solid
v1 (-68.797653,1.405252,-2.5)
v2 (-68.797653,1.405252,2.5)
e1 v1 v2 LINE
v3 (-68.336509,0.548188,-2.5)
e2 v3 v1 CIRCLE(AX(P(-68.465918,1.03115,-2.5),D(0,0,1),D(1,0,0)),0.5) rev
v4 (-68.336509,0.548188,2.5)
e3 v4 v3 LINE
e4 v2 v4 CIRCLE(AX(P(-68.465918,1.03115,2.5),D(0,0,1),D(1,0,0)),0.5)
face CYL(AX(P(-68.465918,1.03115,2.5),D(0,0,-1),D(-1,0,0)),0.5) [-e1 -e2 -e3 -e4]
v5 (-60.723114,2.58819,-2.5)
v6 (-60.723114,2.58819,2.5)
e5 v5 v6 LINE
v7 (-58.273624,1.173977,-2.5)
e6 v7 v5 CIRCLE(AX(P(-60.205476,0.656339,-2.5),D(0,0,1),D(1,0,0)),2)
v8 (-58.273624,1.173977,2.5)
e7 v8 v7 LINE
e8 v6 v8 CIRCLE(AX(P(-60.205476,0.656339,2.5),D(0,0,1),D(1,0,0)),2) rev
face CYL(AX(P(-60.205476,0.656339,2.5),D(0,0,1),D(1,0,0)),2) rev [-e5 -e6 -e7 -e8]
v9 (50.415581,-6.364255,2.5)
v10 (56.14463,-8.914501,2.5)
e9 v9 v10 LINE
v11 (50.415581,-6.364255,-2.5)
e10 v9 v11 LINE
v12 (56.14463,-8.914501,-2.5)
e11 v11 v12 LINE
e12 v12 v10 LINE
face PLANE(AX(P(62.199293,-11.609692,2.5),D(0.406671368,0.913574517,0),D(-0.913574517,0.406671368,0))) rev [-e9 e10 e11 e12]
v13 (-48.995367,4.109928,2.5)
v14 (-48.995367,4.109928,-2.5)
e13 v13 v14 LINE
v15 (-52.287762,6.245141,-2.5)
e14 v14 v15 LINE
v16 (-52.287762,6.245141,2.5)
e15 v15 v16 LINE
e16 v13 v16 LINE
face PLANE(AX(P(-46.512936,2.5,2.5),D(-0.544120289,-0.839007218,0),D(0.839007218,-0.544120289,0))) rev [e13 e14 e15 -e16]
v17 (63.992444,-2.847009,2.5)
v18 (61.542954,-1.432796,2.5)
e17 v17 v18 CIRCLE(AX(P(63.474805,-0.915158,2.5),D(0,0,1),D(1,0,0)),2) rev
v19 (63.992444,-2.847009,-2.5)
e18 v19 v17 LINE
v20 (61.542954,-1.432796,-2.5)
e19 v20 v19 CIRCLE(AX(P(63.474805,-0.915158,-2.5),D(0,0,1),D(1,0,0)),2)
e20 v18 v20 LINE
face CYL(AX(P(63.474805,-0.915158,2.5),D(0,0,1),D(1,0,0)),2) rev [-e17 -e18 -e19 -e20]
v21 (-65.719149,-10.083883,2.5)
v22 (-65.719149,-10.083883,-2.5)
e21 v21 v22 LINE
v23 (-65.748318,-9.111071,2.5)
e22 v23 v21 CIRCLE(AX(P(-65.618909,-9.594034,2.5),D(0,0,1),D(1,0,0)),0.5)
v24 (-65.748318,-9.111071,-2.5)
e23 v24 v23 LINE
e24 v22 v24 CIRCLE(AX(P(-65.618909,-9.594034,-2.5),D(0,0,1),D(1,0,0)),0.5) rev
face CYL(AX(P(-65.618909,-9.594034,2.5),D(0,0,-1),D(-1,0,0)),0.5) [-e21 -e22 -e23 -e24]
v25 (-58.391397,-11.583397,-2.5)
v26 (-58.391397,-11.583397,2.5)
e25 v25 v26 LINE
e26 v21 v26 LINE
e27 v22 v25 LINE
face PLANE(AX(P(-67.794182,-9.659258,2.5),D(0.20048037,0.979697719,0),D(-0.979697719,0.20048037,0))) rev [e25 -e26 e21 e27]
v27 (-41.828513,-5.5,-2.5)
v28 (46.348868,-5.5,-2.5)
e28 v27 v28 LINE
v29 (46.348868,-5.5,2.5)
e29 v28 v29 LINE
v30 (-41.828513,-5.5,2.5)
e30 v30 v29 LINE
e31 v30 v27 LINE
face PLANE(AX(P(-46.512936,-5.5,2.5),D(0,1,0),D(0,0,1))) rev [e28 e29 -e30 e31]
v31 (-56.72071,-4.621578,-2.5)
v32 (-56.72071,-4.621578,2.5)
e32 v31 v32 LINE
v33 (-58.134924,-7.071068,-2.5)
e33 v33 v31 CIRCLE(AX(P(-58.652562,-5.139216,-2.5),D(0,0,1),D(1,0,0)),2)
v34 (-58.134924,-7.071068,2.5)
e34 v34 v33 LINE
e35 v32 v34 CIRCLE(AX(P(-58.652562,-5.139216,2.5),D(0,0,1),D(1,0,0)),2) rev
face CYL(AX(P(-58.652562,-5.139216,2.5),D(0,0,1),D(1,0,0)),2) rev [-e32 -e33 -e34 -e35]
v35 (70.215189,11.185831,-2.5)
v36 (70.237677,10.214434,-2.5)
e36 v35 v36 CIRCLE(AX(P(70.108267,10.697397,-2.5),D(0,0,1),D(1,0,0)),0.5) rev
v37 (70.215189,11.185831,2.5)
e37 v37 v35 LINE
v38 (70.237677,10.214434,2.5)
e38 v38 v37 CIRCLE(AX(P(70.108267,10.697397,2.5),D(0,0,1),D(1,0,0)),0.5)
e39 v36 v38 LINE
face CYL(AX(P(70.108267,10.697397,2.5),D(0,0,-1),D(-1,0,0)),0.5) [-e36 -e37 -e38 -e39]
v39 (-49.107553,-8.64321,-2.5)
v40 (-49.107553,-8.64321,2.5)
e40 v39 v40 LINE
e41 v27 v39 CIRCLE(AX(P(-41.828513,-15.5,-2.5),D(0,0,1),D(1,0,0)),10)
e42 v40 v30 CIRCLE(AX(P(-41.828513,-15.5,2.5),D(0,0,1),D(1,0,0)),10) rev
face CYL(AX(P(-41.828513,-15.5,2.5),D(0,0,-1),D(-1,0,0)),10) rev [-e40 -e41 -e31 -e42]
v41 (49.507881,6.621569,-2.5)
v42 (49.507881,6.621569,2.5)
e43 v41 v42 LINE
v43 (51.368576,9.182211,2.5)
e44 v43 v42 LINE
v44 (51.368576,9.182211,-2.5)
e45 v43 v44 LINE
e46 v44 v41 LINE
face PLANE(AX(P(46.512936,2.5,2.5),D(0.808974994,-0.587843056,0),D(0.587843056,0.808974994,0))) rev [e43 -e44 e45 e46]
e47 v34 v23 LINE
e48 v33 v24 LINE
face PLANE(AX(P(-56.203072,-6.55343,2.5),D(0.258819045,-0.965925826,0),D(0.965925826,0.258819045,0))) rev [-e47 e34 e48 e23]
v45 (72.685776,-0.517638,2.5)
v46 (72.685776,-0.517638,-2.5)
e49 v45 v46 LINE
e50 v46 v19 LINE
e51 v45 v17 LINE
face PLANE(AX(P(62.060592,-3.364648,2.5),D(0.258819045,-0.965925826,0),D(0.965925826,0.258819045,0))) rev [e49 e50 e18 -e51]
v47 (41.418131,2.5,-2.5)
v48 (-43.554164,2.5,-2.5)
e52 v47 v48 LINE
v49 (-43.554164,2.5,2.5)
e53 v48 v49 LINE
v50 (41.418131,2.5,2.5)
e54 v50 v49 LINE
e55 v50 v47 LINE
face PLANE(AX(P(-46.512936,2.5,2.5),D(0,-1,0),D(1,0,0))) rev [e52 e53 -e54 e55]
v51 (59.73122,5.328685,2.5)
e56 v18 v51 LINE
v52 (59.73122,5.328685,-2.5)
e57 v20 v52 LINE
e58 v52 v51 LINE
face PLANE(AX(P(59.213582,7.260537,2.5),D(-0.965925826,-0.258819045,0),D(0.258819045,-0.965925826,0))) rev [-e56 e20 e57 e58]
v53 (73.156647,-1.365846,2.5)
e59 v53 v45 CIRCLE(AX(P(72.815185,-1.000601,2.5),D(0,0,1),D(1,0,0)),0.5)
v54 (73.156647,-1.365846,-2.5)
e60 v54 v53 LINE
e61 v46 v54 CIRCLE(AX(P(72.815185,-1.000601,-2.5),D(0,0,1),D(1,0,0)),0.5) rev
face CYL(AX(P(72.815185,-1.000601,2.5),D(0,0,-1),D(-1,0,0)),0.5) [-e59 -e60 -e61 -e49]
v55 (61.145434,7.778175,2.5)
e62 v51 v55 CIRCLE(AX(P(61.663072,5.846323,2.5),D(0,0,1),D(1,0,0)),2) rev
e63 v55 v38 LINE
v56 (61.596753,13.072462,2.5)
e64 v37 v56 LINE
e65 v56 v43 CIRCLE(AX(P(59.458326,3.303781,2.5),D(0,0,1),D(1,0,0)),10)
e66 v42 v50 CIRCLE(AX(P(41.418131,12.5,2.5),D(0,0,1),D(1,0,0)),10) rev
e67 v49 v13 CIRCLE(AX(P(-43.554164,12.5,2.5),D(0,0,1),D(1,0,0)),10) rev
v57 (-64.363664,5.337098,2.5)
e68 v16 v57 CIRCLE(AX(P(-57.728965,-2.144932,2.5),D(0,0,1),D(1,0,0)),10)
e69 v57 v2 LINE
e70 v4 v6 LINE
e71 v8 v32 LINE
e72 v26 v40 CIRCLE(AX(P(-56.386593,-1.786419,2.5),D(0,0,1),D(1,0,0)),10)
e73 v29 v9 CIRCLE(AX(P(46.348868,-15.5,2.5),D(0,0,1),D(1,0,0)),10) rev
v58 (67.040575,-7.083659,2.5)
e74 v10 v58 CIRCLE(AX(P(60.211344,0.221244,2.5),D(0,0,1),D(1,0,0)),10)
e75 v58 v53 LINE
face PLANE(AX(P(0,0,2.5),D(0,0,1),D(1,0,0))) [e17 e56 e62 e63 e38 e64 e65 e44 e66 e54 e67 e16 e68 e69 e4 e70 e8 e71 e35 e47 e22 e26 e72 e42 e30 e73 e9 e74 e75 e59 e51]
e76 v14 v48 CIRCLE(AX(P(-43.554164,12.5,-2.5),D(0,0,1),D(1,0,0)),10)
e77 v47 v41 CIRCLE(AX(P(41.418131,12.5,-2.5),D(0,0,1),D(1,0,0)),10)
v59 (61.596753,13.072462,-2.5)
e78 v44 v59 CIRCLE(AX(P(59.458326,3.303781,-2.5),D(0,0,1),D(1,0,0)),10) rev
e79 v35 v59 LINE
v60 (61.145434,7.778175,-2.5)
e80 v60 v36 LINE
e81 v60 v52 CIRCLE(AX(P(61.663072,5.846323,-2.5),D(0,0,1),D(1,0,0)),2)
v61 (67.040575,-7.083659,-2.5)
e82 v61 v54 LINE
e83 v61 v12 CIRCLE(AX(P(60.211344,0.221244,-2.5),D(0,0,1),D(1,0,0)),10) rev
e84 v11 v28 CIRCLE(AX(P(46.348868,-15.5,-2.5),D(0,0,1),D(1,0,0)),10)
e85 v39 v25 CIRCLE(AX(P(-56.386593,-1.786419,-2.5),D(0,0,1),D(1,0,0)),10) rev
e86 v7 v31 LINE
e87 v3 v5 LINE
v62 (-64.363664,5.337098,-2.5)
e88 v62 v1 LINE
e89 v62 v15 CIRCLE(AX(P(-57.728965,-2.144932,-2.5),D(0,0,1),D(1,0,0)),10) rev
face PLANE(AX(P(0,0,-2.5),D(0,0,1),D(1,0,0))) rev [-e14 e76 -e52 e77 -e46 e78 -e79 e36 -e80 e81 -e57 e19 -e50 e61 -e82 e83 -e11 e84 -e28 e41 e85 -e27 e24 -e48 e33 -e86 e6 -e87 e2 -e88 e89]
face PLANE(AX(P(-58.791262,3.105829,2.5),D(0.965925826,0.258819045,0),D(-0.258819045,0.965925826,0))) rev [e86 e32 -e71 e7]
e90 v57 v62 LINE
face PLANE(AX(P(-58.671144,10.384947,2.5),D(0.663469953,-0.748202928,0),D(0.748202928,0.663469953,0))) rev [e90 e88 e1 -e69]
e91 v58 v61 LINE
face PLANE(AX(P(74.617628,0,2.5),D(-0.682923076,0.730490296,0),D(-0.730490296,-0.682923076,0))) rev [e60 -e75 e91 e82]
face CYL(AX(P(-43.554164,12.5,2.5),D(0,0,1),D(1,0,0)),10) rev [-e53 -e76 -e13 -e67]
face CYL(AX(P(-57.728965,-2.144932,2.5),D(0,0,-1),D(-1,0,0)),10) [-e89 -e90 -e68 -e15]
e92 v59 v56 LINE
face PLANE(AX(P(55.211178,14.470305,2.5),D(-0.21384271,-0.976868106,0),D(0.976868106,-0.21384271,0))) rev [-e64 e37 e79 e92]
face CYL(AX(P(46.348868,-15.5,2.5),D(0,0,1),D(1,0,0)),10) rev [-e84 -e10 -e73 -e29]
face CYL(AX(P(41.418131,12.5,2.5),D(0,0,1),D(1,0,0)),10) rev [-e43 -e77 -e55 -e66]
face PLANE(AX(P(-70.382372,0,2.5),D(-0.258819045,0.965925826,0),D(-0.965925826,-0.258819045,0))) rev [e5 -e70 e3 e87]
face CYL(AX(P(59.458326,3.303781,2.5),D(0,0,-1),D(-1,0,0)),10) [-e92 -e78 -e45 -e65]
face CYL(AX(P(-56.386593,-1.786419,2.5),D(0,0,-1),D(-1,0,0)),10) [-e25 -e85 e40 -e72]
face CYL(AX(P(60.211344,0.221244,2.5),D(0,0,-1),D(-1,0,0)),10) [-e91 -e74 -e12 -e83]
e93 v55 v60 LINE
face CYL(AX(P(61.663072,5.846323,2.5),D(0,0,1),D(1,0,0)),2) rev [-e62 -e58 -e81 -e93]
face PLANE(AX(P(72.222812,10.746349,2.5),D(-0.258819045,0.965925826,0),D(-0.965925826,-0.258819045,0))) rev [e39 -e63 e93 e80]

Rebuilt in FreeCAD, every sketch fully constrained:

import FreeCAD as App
import Part
import Sketcher
Q = App.Units.Quantity


def edges_at(feature, points):
    """Names of the edges that pass closest to the given points."""
    edges = feature.Shape.Edges
    near = lambda p: min(range(len(edges)), key=lambda i: edges[i].distToShape(Part.Vertex(*p))[0])
    return sorted({f"Edge{near(p) + 1}" for p in points})

doc = App.newDocument("Part")
body = doc.addObject("PartDesign::Body", "Body")

# Sketch on XY plane
sketch1 = body.newObject("Sketcher::SketchObject", "Sketch")
sketch1.AttachmentSupport = (doc.getObject("XY_Plane"), [""])
sketch1.MapMode = "FlatFace"
sketch1.addGeometry([
    Part.LineSegment(App.Vector(55, 14, 0), App.Vector(47, 2, 0)),  # 0
    Part.LineSegment(App.Vector(47, 2, 0), App.Vector(-47, 2, 0)),  # 1
    Part.LineSegment(App.Vector(-47, 2, 0), App.Vector(-59, 10, 0)),  # 2
    Part.LineSegment(App.Vector(-59, 10, 0), App.Vector(-70, 0, 0)),  # 3
    Part.LineSegment(App.Vector(-70, 0, 0), App.Vector(-59, 3, 0)),  # 4
    Part.LineSegment(App.Vector(-59, 3, 0), App.Vector(-56, -7, 0)),  # 5
    Part.LineSegment(App.Vector(-56, -7, 0), App.Vector(-68, -10, 0)),  # 6
    Part.LineSegment(App.Vector(-68, -10, 0), App.Vector(-52, -13, 0)),  # 7
    Part.LineSegment(App.Vector(-52, -13, 0), App.Vector(-47, -6, 0)),  # 8
    Part.LineSegment(App.Vector(-47, -6, 0), App.Vector(48, -6, 0)),  # 9
    Part.LineSegment(App.Vector(48, -6, 0), App.Vector(62, -12, 0)),  # 10
    Part.LineSegment(App.Vector(62, -12, 0), App.Vector(75, 0, 0)),  # 11
    Part.LineSegment(App.Vector(75, 0, 0), App.Vector(62, -3, 0)),  # 12
    Part.LineSegment(App.Vector(62, -3, 0), App.Vector(59, 7, 0)),  # 13
    Part.LineSegment(App.Vector(59, 7, 0), App.Vector(72, 11, 0)),  # 14
    Part.LineSegment(App.Vector(72, 11, 0), App.Vector(55, 14, 0)),  # 15
], False)
sketch1.addConstraint([
    Sketcher.Constraint("Coincident", 0, 2, 1, 1),
    Sketcher.Constraint("Coincident", 1, 2, 2, 1),
    Sketcher.Constraint("Coincident", 2, 2, 3, 1),
    Sketcher.Constraint("Coincident", 3, 2, 4, 1),
    Sketcher.Constraint("Coincident", 4, 2, 5, 1),
    Sketcher.Constraint("Coincident", 5, 2, 6, 1),
    Sketcher.Constraint("Coincident", 6, 2, 7, 1),
    Sketcher.Constraint("Coincident", 7, 2, 8, 1),
    Sketcher.Constraint("Coincident", 8, 2, 9, 1),
    Sketcher.Constraint("Coincident", 9, 2, 10, 1),
    Sketcher.Constraint("Coincident", 10, 2, 11, 1),
    Sketcher.Constraint("Coincident", 11, 2, 12, 1),
    Sketcher.Constraint("Coincident", 12, 2, 13, 1),
    Sketcher.Constraint("Coincident", 13, 2, 14, 1),
    Sketcher.Constraint("Coincident", 14, 2, 15, 1),
    Sketcher.Constraint("Coincident", 15, 2, 0, 1),
    Sketcher.Constraint("Horizontal", 1),
    Sketcher.Constraint("Horizontal", 9),
    Sketcher.Constraint("PointOnObject", 3, 2, -1),
    Sketcher.Constraint("PointOnObject", 11, 2, -1),
    Sketcher.Constraint("Perpendicular", 4, 5),
    Sketcher.Constraint("Perpendicular", 5, 6),
    Sketcher.Constraint("Parallel", 6, 12),
    Sketcher.Constraint("Perpendicular", 12, 13),
    Sketcher.Constraint("Perpendicular", 13, 14),
    Sketcher.Constraint("Vertical", 1, 2, 8, 2),
    Sketcher.Constraint("Equal", 4, 6),
    Sketcher.Constraint("Equal", 3, 7),
    Sketcher.Constraint("Angle", 4, Q("15 deg")),
    Sketcher.Constraint("Distance", 4, Q("12 mm")),
    Sketcher.Constraint("Distance", 5, Q("10 mm")),
    Sketcher.Constraint("Distance", 11, Q("17 mm")),
    Sketcher.Constraint("Distance", 12, Q("13 mm")),
    Sketcher.Constraint("Distance", 13, Q("11 mm")),
    Sketcher.Constraint("DistanceY", 8, 2, 1, 2, Q("8 mm")),
    Sketcher.Constraint("DistanceY", -1, 1, 0, 2, Q("2.5 mm")),
    Sketcher.Constraint("DistanceX", 1, 2, 1, 1, Q("93.025872 mm")),
    Sketcher.Constraint("DistanceX", 4, 2, 0, 2, Q("105.304198 mm")),
    Sketcher.Constraint("DistanceY", 7, 2, 4, 2, Q("15.903101 mm")),
    Sketcher.Constraint("DistanceX", 12, 2, 10, 2, Q("0.138701 mm")),
    Sketcher.Constraint("Distance", 0, Q("14.796879 mm")),
    Sketcher.Constraint("Distance", 10, Q("15.02366 mm")),
    Sketcher.Constraint("DistanceX", 9, 1, 9, 2, Q("94.986996 mm")),
    Sketcher.Constraint("DistanceX", 6, 2, -1, 1, Q("67.794182 mm")),
    Sketcher.Constraint("DistanceX", -1, 1, 14, 2, Q("72.222812 mm")),
    Sketcher.Constraint("DistanceX", -1, 1, 15, 2, Q("55.211178 mm")),
    Sketcher.Constraint("DistanceX", 2, 2, 1, 2, Q("12.158208 mm")),
    Sketcher.Constraint("DistanceY", 4, 2, 2, 2, Q("7.279119 mm")),
])
pad1 = body.newObject("PartDesign::Pad", "Pad")
pad1.Profile = sketch1
pad1.Length = 5
pad1.Midplane = True
doc.recompute()

fillet = body.newObject("PartDesign::Fillet", "Fillet")
fillet.Base = (pad1, edges_at(pad1, [(-52.459, -12.797, 0), (-58.671, 10.385, 0)]))
fillet.Radius = 10
doc.recompute()

fillet2 = body.newObject("PartDesign::Fillet", "Fillet001")
fillet2.Base = (fillet, edges_at(fillet, [(62.199, -11.61, 0), (55.211, 14.47, 0)]))
fillet2.Radius = 10
doc.recompute()

fillet3 = body.newObject("PartDesign::Fillet", "Fillet002")
fillet3.Base = (fillet2, edges_at(fillet2, [
    (59.214, 7.261, 0),
    (62.061, -3.365, 0),
    (-56.203, -6.553, 0),
    (-58.791, 3.106, 0),
]))
fillet3.Radius = 2
doc.recompute()

fillet4 = body.newObject("PartDesign::Fillet", "Fillet003")
fillet4.Base = (fillet3, edges_at(fillet3, [
    (72.223, 10.746, 0),
    (74.618, 0, 0),
    (-67.794, -9.659, 0),
    (-70.382, 0, 0),
]))
fillet4.Radius = 0.5
doc.recompute()

fillet5 = body.newObject("PartDesign::Fillet", "Fillet004")
fillet5.Base = (fillet4, edges_at(fillet4, [
    (46.513, 2.5, 0),
    (48.474, -5.5, 0),
    (-46.513, -5.5, 0),
    (-46.513, 2.5, 0),
]))
fillet5.Radius = 10

doc.recompute()
